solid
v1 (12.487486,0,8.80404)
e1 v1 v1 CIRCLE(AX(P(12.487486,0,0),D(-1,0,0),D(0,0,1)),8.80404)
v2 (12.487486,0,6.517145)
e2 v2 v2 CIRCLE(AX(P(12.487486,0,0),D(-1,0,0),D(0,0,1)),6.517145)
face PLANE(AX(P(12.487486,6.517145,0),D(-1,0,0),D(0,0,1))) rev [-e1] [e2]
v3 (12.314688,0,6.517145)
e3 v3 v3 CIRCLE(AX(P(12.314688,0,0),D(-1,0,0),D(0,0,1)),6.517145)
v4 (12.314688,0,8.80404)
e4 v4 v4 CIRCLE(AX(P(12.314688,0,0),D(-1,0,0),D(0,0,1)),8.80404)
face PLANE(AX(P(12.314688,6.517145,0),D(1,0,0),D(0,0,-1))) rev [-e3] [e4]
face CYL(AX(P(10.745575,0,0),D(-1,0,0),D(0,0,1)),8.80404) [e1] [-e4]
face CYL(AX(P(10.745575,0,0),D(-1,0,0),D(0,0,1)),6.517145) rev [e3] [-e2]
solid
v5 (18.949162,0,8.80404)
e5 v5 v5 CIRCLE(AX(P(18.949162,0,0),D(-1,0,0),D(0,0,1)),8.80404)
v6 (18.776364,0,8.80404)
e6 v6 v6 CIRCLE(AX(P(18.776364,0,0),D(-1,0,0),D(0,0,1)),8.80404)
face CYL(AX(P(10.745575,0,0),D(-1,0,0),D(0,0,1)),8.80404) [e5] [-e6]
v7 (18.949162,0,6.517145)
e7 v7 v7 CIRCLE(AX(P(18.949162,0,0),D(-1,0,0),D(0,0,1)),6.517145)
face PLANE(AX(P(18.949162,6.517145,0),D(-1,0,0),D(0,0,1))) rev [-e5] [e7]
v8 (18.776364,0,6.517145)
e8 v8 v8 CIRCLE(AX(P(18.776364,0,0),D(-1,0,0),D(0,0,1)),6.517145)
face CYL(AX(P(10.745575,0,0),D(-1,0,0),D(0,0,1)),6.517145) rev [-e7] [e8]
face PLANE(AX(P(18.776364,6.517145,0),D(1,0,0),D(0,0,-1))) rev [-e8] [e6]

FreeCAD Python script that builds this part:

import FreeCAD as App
import Part
import Sketcher
from FreeCAD import Vector
Q = App.Units.Quantity


def add_polygon(sketch, points):
    """Adds a closed chain of lines whose ends are joined by coincident constraints."""
    first, n = sketch.GeometryCount, len(points)
    for a, b in zip(points, points[1:] + points[:1]):
        sketch.addGeometry(Part.LineSegment(App.Vector(*a, 0), App.Vector(*b, 0)), False)
    for i in range(n):
        sketch.addConstraint(Sketcher.Constraint("Coincident", first + i, 2, first + (i + 1) % n, 1))

doc = App.newDocument("Part")
body = doc.addObject("PartDesign::Body", "Body")
body.AllowCompound = True

# Sketch on XY plane
sketch1 = body.newObject("Sketcher::SketchObject", "Sketch")
sketch1.AttachmentSupport = (doc.getObject("XY_Plane"), [""])
sketch1.MapMode = "FlatFace"
add_polygon(sketch1, [(12.314688, 8.80404), (12.314688, 6.517145), (12.487486, 6.517145), (12.487486, 8.80404)])  # lines 0-3
add_polygon(sketch1, [(18.776364, 8.80404), (18.776364, 6.517145), (18.949162, 6.517145), (18.949162, 8.80404)])  # lines 4-7
sketch1.addConstraint([
    Sketcher.Constraint("Vertical", 0),
    Sketcher.Constraint("Horizontal", 1),
    Sketcher.Constraint("Vertical", 2),
    Sketcher.Constraint("Horizontal", 3),
    Sketcher.Constraint("Vertical", 4),
    Sketcher.Constraint("Horizontal", 5),
    Sketcher.Constraint("Vertical", 6),
    Sketcher.Constraint("Horizontal", 7),
    Sketcher.Constraint("Horizontal", 1, 2, 4, 2),
    Sketcher.Constraint("Horizontal", 3, 2, 6, 2),
    Sketcher.Constraint("Equal", 3, 5),
    Sketcher.Constraint("DistanceX", 1, 1, 1, 2, Q("0.172798 mm")),
    Sketcher.Constraint("DistanceY", 0, 2, 0, 1, Q("2.286894 mm")),
    Sketcher.Constraint("DistanceY", -1, 1, 2, 2, Q("8.80404 mm")),
    Sketcher.Constraint("DistanceX", -1, 1, 5, 2, Q("18.949162 mm")),
    Sketcher.Constraint("DistanceX", 1, 2, 4, 2, Q("6.288878 mm")),
])
revolution = body.newObject("PartDesign::Revolution", "Revolution")
revolution.Profile = sketch1
revolution.ReferenceAxis = (sketch1, ["H_Axis"])
revolution.Angle = 360

doc.recompute()
